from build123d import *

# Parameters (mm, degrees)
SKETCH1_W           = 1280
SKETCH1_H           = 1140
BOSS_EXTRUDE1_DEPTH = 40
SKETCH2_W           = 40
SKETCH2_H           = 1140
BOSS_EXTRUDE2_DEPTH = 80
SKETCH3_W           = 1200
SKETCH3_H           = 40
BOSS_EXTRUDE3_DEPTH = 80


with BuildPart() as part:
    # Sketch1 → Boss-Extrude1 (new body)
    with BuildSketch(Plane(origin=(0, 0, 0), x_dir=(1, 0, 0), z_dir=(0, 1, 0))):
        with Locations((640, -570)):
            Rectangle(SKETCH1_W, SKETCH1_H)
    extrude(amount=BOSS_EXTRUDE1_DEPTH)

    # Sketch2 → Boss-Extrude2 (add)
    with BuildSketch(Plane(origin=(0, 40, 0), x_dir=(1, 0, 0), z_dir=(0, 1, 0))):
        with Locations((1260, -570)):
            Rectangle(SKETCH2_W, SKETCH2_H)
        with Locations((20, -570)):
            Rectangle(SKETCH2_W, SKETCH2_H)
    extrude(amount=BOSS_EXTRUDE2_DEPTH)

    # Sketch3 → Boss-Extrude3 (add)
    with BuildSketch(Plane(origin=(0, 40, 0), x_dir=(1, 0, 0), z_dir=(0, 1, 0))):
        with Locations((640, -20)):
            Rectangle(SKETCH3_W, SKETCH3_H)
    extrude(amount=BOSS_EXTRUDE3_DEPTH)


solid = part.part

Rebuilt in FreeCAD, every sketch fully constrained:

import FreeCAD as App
import Part
import Sketcher
from FreeCAD import Vector
Q = App.Units.Quantity


def add_polygon(sketch, points):
    """Adds a closed chain of lines whose ends are joined by coincident constraints."""
    first, n = sketch.GeometryCount, len(points)
    for a, b in zip(points, points[1:] + points[:1]):
        sketch.addGeometry(Part.LineSegment(App.Vector(*a, 0), App.Vector(*b, 0)), False)
    for i in range(n):
        sketch.addConstraint(Sketcher.Constraint("Coincident", first + i, 2, first + (i + 1) % n, 1))

doc = App.newDocument("Part")
params = doc.addObject("Spreadsheet::Sheet", "Params")
for row, (alias, value) in enumerate([
    ("sketch1_width", "1280 mm"),
    ("sketch1_height", "1140 mm"),
    ("pad1_length", "40 mm"),
    ("sketch2_width", "40 mm"),
    ("sketch2_height", "1140 mm"),
    ("pad2_length", "80 mm"),
    ("sketch3_width", "1200 mm"),
    ("sketch3_height", "40 mm"),
    ("pad3_length", "80 mm"),
], start=1):
    params.set(f"A{row}", alias)
    params.set(f"B{row}", "=" + value)
    params.setAlias(f"B{row}", alias)

body = doc.addObject("PartDesign::Body", "Body")

# Sketch on XZ plane
sketch1 = body.newObject("Sketcher::SketchObject", "Sketch")
sketch1.AttachmentSupport = (doc.getObject("XZ_Plane"), [""])
sketch1.MapMode = "FlatFace"
add_polygon(sketch1, [(0, 0), (0, 1140), (1280, 1140), (1280, 0)])  # lines 0-3
sketch1.addConstraint(Sketcher.Constraint("Vertical", 0))
sketch1.addConstraint(Sketcher.Constraint("Horizontal", 1))
sketch1.addConstraint(Sketcher.Constraint("Vertical", 2))
sketch1.addConstraint(Sketcher.Constraint("Horizontal", 3))
sketch1.addConstraint(Sketcher.Constraint("Coincident", 3, 2, -1, 1))
sketch1.addConstraint(Sketcher.Constraint("DistanceX", 1, 1, 1, 2, Q("1280 mm")))
sketch1.addConstraint(Sketcher.Constraint("DistanceY", 0, 1, 0, 2, Q("1140 mm")))
sketch1.setExpression("Constraints[9]", "Params.sketch1_width")
sketch1.setExpression("Constraints[10]", "Params.sketch1_height")
pad1 = body.newObject("PartDesign::Pad", "Pad")
pad1.Profile = sketch1
pad1.setExpression("Length", "Params.pad1_length")
pad1.Reversed = True

# Sketch on XZ plane
sketch2 = body.newObject("Sketcher::SketchObject", "Sketch001")
sketch2.AttachmentSupport = (doc.getObject("XZ_Plane"), [""])
sketch2.MapMode = "FlatFace"
sketch2.AttachmentOffset = App.Placement(Vector(0, 0, -40), App.Rotation())
add_polygon(sketch2, [(1240, 0), (1240, 1140), (1280, 1140), (1280, 0)])  # lines 0-3
add_polygon(sketch2, [(0, 0), (0, 1140), (40, 1140), (40, 0)])  # lines 4-7
sketch2.addConstraint(Sketcher.Constraint("Vertical", 0))
sketch2.addConstraint(Sketcher.Constraint("Horizontal", 1))
sketch2.addConstraint(Sketcher.Constraint("Vertical", 2))
sketch2.addConstraint(Sketcher.Constraint("Horizontal", 3))
sketch2.addConstraint(Sketcher.Constraint("Vertical", 4))
sketch2.addConstraint(Sketcher.Constraint("Horizontal", 5))
sketch2.addConstraint(Sketcher.Constraint("Vertical", 6))
sketch2.addConstraint(Sketcher.Constraint("Horizontal", 7))
sketch2.addConstraint(Sketcher.Constraint("Coincident", 7, 2, -1, 1))
sketch2.addConstraint(Sketcher.Constraint("PointOnObject", 2, 2, -1))
sketch2.addConstraint(Sketcher.Constraint("Horizontal", 1, 2, 4, 2))
sketch2.addConstraint(Sketcher.Constraint("Equal", 3, 5))
sketch2.addConstraint(Sketcher.Constraint("DistanceX", 1, 1, 1, 2, Q("40 mm")))
sketch2.addConstraint(Sketcher.Constraint("DistanceY", 0, 1, 0, 2, Q("1140 mm")))
sketch2.addConstraint(Sketcher.Constraint("DistanceX", -1, 1, 0, 2, Q("1240 mm")))
sketch2.setExpression("Constraints[20]", "Params.sketch2_width")
sketch2.setExpression("Constraints[21]", "Params.sketch2_height")
pad2 = body.newObject("PartDesign::Pad", "Pad001")
pad2.Profile = sketch2
pad2.setExpression("Length", "Params.pad2_length")
pad2.Reversed = True

# Sketch on XZ plane
sketch3 = body.newObject("Sketcher::SketchObject", "Sketch002")
sketch3.AttachmentSupport = (doc.getObject("XZ_Plane"), [""])
sketch3.MapMode = "FlatFace"
sketch3.AttachmentOffset = App.Placement(Vector(0, 0, -40), App.Rotation())
add_polygon(sketch3, [(40, 0), (40, 40), (1240, 40), (1240, 0)])  # lines 0-3
sketch3.addConstraint(Sketcher.Constraint("Vertical", 0))
sketch3.addConstraint(Sketcher.Constraint("Horizontal", 1))
sketch3.addConstraint(Sketcher.Constraint("Vertical", 2))
sketch3.addConstraint(Sketcher.Constraint("Horizontal", 3))
sketch3.addConstraint(Sketcher.Constraint("PointOnObject", 2, 2, -1))
sketch3.addConstraint(Sketcher.Constraint("DistanceX", 1, 1, 1, 2, Q("1200 mm")))
sketch3.addConstraint(Sketcher.Constraint("DistanceY", 0, 1, 0, 2, Q("40 mm")))
sketch3.addConstraint(Sketcher.Constraint("DistanceX", -1, 1, 0, 2, Q("40 mm")))
sketch3.setExpression("Constraints[9]", "Params.sketch3_width")
sketch3.setExpression("Constraints[10]", "Params.sketch3_height")
pad3 = body.newObject("PartDesign::Pad", "Pad002")
pad3.Profile = sketch3
pad3.setExpression("Length", "Params.pad3_length")
pad3.Reversed = True

doc.recompute()
